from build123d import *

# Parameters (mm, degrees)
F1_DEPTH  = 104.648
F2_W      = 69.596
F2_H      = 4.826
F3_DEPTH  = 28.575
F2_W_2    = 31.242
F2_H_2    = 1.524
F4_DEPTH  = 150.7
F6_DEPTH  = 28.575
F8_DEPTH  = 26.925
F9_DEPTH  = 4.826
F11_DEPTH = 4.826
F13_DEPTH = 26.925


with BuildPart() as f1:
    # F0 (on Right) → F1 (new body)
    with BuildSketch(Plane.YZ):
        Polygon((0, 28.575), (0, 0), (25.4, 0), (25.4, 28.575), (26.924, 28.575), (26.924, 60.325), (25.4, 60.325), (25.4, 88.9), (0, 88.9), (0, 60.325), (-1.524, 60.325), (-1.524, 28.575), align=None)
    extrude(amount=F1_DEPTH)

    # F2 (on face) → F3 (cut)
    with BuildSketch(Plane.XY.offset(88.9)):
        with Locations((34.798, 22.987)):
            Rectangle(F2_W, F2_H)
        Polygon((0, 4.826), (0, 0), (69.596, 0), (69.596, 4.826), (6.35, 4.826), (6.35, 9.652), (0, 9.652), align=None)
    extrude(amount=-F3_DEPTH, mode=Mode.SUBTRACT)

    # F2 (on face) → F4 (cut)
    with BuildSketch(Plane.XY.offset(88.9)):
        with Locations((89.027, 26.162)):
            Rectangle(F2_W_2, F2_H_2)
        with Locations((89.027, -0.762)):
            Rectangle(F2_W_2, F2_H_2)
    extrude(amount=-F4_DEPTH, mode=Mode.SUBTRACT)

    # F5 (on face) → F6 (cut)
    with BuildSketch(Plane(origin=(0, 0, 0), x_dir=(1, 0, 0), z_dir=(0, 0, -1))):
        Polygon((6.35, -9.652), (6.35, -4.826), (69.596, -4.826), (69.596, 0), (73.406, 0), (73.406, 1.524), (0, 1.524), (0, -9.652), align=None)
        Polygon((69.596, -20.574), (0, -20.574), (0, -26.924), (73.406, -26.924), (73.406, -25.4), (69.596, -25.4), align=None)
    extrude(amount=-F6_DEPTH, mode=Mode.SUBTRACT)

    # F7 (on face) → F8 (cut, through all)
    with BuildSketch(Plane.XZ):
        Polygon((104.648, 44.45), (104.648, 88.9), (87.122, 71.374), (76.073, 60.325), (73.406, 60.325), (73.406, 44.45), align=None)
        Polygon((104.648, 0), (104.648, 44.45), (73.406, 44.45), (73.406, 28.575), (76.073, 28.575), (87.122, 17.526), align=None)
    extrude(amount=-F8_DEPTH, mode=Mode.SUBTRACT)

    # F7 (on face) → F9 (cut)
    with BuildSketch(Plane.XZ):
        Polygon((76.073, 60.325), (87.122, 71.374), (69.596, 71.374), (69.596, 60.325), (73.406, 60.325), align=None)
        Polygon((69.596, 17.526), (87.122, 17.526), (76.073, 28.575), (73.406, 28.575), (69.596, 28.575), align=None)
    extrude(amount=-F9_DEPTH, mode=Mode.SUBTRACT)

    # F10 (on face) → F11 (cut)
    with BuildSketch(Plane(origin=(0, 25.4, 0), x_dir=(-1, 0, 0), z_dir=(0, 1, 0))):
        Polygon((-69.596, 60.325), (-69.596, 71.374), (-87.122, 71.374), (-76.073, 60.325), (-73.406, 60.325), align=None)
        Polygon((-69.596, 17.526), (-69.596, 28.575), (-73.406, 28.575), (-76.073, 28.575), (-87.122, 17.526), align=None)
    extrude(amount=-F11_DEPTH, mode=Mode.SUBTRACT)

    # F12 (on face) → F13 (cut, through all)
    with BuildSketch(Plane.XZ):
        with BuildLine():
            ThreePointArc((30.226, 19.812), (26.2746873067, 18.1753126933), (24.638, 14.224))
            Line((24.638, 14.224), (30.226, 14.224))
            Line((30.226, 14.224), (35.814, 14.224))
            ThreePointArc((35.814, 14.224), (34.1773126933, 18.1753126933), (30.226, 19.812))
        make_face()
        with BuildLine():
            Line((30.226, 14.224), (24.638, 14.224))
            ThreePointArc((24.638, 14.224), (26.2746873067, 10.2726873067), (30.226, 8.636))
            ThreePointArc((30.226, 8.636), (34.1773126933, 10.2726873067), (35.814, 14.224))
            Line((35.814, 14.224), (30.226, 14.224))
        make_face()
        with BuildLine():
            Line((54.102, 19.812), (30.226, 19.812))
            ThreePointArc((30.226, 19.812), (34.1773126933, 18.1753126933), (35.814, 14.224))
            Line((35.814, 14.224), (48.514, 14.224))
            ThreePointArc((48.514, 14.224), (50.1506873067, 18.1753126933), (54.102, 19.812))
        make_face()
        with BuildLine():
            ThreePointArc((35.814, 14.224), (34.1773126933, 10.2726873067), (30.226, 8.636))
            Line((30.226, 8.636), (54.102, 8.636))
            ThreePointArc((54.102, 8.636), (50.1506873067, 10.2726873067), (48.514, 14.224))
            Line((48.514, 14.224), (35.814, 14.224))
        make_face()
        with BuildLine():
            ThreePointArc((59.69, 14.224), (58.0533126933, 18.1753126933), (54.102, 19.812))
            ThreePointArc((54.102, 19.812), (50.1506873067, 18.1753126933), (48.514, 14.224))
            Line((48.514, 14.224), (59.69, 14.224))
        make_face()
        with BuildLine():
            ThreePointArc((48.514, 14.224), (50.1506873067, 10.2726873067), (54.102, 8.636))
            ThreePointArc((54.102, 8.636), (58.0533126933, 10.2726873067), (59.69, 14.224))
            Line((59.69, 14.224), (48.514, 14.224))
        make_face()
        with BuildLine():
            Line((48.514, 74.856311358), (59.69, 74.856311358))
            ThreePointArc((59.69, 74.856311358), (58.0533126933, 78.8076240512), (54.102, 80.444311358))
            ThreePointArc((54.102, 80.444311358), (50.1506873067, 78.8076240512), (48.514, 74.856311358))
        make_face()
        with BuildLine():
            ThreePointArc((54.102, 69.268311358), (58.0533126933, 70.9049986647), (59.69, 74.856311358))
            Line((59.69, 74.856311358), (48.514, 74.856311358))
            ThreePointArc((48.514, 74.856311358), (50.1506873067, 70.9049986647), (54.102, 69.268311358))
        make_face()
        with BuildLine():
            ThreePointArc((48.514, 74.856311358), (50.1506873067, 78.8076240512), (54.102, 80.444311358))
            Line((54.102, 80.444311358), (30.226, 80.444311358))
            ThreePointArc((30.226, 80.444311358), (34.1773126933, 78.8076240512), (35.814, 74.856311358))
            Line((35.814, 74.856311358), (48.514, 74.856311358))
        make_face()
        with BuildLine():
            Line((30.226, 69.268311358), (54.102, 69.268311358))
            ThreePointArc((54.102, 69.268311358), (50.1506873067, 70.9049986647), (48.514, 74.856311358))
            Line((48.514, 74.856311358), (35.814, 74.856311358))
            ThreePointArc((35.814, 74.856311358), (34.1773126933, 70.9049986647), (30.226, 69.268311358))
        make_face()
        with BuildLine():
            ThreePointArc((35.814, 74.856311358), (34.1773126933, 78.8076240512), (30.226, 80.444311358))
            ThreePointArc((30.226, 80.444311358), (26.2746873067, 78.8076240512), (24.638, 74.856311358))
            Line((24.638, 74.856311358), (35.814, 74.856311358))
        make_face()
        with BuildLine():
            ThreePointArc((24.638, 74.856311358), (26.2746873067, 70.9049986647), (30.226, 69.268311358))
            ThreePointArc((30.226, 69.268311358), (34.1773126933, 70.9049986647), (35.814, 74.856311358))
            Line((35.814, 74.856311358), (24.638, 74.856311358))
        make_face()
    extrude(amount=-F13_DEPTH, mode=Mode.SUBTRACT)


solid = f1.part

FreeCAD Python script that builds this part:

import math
import FreeCAD as App
import Part
import Sketcher

V = App.Vector
Q = App.Units.Quantity


def add_polygon(sketch, points):
    """Adds a closed chain of lines whose ends are joined by coincident constraints."""
    first, n = sketch.GeometryCount, len(points)
    for a, b in zip(points, points[1:] + points[:1]):
        sketch.addGeometry(Part.LineSegment(App.Vector(*a, 0), App.Vector(*b, 0)), False)
    for i in range(n):
        sketch.addConstraint(Sketcher.Constraint("Coincident", first + i, 2, first + (i + 1) % n, 1))

doc = App.newDocument("Part")
body = doc.addObject("PartDesign::Body", "Body")

# Sketch on YZ plane
sketch1 = body.newObject("Sketcher::SketchObject", "Sketch")
sketch1.AttachmentSupport = (doc.getObject("YZ_Plane"), [""])
sketch1.MapMode = "FlatFace"
add_polygon(sketch1, [(0, 28.575), (0, 0), (25.4, 0), (25.4, 28.575), (26.924, 28.575), (26.924, 60.325), (25.4, 60.325), (25.4, 88.9), (0, 88.9), (0, 60.325), (-1.524, 60.325), (-1.524, 28.575)])  # lines 0-11
sketch1.addConstraint(Sketcher.Constraint("Vertical", 0))
sketch1.addConstraint(Sketcher.Constraint("Horizontal", 1))
sketch1.addConstraint(Sketcher.Constraint("Vertical", 2))
sketch1.addConstraint(Sketcher.Constraint("Horizontal", 3))
sketch1.addConstraint(Sketcher.Constraint("Vertical", 4))
sketch1.addConstraint(Sketcher.Constraint("Horizontal", 5))
sketch1.addConstraint(Sketcher.Constraint("Vertical", 6))
sketch1.addConstraint(Sketcher.Constraint("Horizontal", 7))
sketch1.addConstraint(Sketcher.Constraint("Vertical", 8))
sketch1.addConstraint(Sketcher.Constraint("Horizontal", 9))
sketch1.addConstraint(Sketcher.Constraint("Vertical", 10))
sketch1.addConstraint(Sketcher.Constraint("Horizontal", 11))
sketch1.addConstraint(Sketcher.Constraint("Coincident", 0, 2, -1, 1))
sketch1.addConstraint(Sketcher.Constraint("PointOnObject", 7, 2, -2))
sketch1.addConstraint(Sketcher.Constraint("Horizontal", 5, 2, 8, 2))
sketch1.addConstraint(Sketcher.Constraint("Horizontal", 3, 2, 10, 2))
sketch1.addConstraint(Sketcher.Constraint("Vertical", 2, 2, 5, 2))
sketch1.addConstraint(Sketcher.Constraint("Equal", 5, 9))
sketch1.addConstraint(Sketcher.Constraint("Equal", 2, 6))
sketch1.addConstraint(Sketcher.Constraint("DistanceX", 1, 1, 1, 2, Q("1 in")))
sketch1.addConstraint(Sketcher.Constraint("DistanceX", 3, 1, 3, 2, Q("0.06 in")))
sketch1.addConstraint(Sketcher.Constraint("DistanceY", 4, 1, 4, 2, Q("1.25 in")))
sketch1.addConstraint(Sketcher.Constraint("DistanceY", -1, 1, 6, 2, Q("3.5 in")))
pad1 = body.newObject("PartDesign::Pad", "Pad")
pad1.Profile = sketch1
pad1.Length = Q("4.12 in")

# Sketch on XY plane
sketch2 = body.newObject("Sketcher::SketchObject", "Sketch001")
sketch2.AttachmentSupport = (doc.getObject("XY_Plane"), [""])
sketch2.MapMode = "FlatFace"
sketch2.AttachmentOffset = App.Placement(V(0, 0, 3.5 * 25.4), App.Rotation())
add_polygon(sketch2, [(0, 25.4), (0, 20.574), (69.596, 20.574), (69.596, 25.4)])  # lines 0-3
add_polygon(sketch2, [(0, 0), (69.596, 0), (69.596, 4.826), (6.35, 4.826), (6.35, 9.652), (0, 9.652)])  # lines 4-9
sketch2.addConstraint(Sketcher.Constraint("Vertical", 0))
sketch2.addConstraint(Sketcher.Constraint("Horizontal", 1))
sketch2.addConstraint(Sketcher.Constraint("Vertical", 2))
sketch2.addConstraint(Sketcher.Constraint("Horizontal", 3))
sketch2.addConstraint(Sketcher.Constraint("Horizontal", 4))
sketch2.addConstraint(Sketcher.Constraint("Vertical", 5))
sketch2.addConstraint(Sketcher.Constraint("Horizontal", 6))
sketch2.addConstraint(Sketcher.Constraint("Vertical", 7))
sketch2.addConstraint(Sketcher.Constraint("Horizontal", 8))
sketch2.addConstraint(Sketcher.Constraint("Vertical", 9))
sketch2.addConstraint(Sketcher.Constraint("Coincident", 9, 2, -1, 1))
sketch2.addConstraint(Sketcher.Constraint("PointOnObject", 0, 2, -2))
sketch2.addConstraint(Sketcher.Constraint("Vertical", 2, 2, 4, 2))
sketch2.addConstraint(Sketcher.Constraint("Equal", 2, 5))
sketch2.addConstraint(Sketcher.Constraint("Equal", 5, 7))
sketch2.addConstraint(Sketcher.Constraint("DistanceY", -1, 1, 2, 2, Q("1 in")))
sketch2.addConstraint(Sketcher.Constraint("DistanceX", 1, 1, 1, 2, Q("2.74 in")))
sketch2.addConstraint(Sketcher.Constraint("DistanceX", 6, 2, 6, 1, Q("2.49 in")))
sketch2.addConstraint(Sketcher.Constraint("DistanceY", 0, 2, 0, 1, Q("0.19 in")))
pocket1 = body.newObject("PartDesign::Pocket", "Pocket")
pocket1.Profile = sketch2
pocket1.Length = Q("1.125 in")

# Sketch on XY plane
sketch3 = body.newObject("Sketcher::SketchObject", "Sketch002")
sketch3.AttachmentSupport = (doc.getObject("XY_Plane"), [""])
sketch3.MapMode = "FlatFace"
sketch3.AttachmentOffset = App.Placement(V(0, 0, 3.5 * 25.4), App.Rotation())
add_polygon(sketch3, [(73.406, 26.924), (73.406, 25.4), (104.648, 25.4), (104.648, 26.924)])  # lines 0-3
add_polygon(sketch3, [(73.406, 0), (73.406, -1.524), (104.648, -1.524), (104.648, 0)])  # lines 4-7
sketch3.addConstraint(Sketcher.Constraint("Vertical", 0))
sketch3.addConstraint(Sketcher.Constraint("Horizontal", 1))
sketch3.addConstraint(Sketcher.Constraint("Vertical", 2))
sketch3.addConstraint(Sketcher.Constraint("Horizontal", 3))
sketch3.addConstraint(Sketcher.Constraint("Vertical", 4))
sketch3.addConstraint(Sketcher.Constraint("Horizontal", 5))
sketch3.addConstraint(Sketcher.Constraint("Vertical", 6))
sketch3.addConstraint(Sketcher.Constraint("Horizontal", 7))
sketch3.addConstraint(Sketcher.Constraint("PointOnObject", 6, 2, -1))
sketch3.addConstraint(Sketcher.Constraint("Vertical", 3, 2, 4, 2))
sketch3.addConstraint(Sketcher.Constraint("Vertical", 2, 2, 5, 2))
sketch3.addConstraint(Sketcher.Constraint("Equal", 2, 4))
sketch3.addConstraint(Sketcher.Constraint("DistanceY", -1, 1, 0, 2, Q("1 in")))
sketch3.addConstraint(Sketcher.Constraint("DistanceX", 1, 1, 1, 2, Q("1.23 in")))
sketch3.addConstraint(Sketcher.Constraint("DistanceY", 0, 2, 0, 1, Q("0.06 in")))
sketch3.addConstraint(Sketcher.Constraint("DistanceX", -1, 1, 0, 2, Q("2.89 in")))
pocket2 = body.newObject("PartDesign::Pocket", "Pocket001")
pocket2.Profile = sketch3
pocket2.Length = 150.7

# Sketch on XY plane
sketch4 = body.newObject("Sketcher::SketchObject", "Sketch003")
sketch4.AttachmentSupport = (doc.getObject("XY_Plane"), [""])
sketch4.MapMode = "FlatFace"
add_polygon(sketch4, [(6.35, 9.652), (6.35, 4.826), (69.596, 4.826), (69.596, 0), (73.406, 0), (73.406, -1.524), (0, -1.524), (0, 9.652)])  # lines 0-7
add_polygon(sketch4, [(69.596, 20.574), (0, 20.574), (0, 26.924), (73.406, 26.924), (73.406, 25.4), (69.596, 25.4)])  # lines 8-13
sketch4.addConstraint(Sketcher.Constraint("Vertical", 0))
sketch4.addConstraint(Sketcher.Constraint("Horizontal", 1))
sketch4.addConstraint(Sketcher.Constraint("Vertical", 2))
sketch4.addConstraint(Sketcher.Constraint("Horizontal", 3))
sketch4.addConstraint(Sketcher.Constraint("Vertical", 4))
sketch4.addConstraint(Sketcher.Constraint("Horizontal", 5))
sketch4.addConstraint(Sketcher.Constraint("Vertical", 6))
sketch4.addConstraint(Sketcher.Constraint("Horizontal", 7))
sketch4.addConstraint(Sketcher.Constraint("Horizontal", 8))
sketch4.addConstraint(Sketcher.Constraint("Vertical", 9))
sketch4.addConstraint(Sketcher.Constraint("Horizontal", 10))
sketch4.addConstraint(Sketcher.Constraint("Vertical", 11))
sketch4.addConstraint(Sketcher.Constraint("Horizontal", 12))
sketch4.addConstraint(Sketcher.Constraint("Vertical", 13))
sketch4.addConstraint(Sketcher.Constraint("PointOnObject", 2, 2, -1))
sketch4.addConstraint(Sketcher.Constraint("PointOnObject", 5, 2, -2))
sketch4.addConstraint(Sketcher.Constraint("PointOnObject", 8, 2, -2))
sketch4.addConstraint(Sketcher.Constraint("Vertical", 4, 2, 10, 2))
sketch4.addConstraint(Sketcher.Constraint("Vertical", 2, 2, 12, 2))
sketch4.addConstraint(Sketcher.Constraint("Equal", 0, 2))
sketch4.addConstraint(Sketcher.Constraint("Equal", 7, 9))
sketch4.addConstraint(Sketcher.Constraint("Equal", 4, 11))
sketch4.addConstraint(Sketcher.Constraint("Equal", 2, 13))
sketch4.addConstraint(Sketcher.Constraint("DistanceY", -1, 1, 11, 2, Q("1 in")))
sketch4.addConstraint(Sketcher.Constraint("DistanceX", 1, 1, 1, 2, Q("2.49 in")))
sketch4.addConstraint(Sketcher.Constraint("DistanceX", 3, 1, 3, 2, Q("0.15 in")))
sketch4.addConstraint(Sketcher.Constraint("DistanceX", 5, 2, 5, 1, Q("2.89 in")))
sketch4.addConstraint(Sketcher.Constraint("DistanceY", 0, 2, 0, 1, Q("0.19 in")))
pocket3 = body.newObject("PartDesign::Pocket", "Pocket002")
pocket3.Profile = sketch4
pocket3.Length = Q("1.125 in")
pocket3.Reversed = True

# Sketch on XZ plane
sketch5 = body.newObject("Sketcher::SketchObject", "Sketch004")
sketch5.AttachmentSupport = (doc.getObject("XZ_Plane"), [""])
sketch5.MapMode = "FlatFace"
add_polygon(sketch5, [(104.648, 88.9), (76.073, 60.325), (73.406, 60.325), (73.406, 28.575), (76.073, 28.575), (104.648, 0)])  # lines 0-5
sketch5.addConstraint(Sketcher.Constraint("Horizontal", 1))
sketch5.addConstraint(Sketcher.Constraint("Vertical", 2))
sketch5.addConstraint(Sketcher.Constraint("Horizontal", 3))
sketch5.addConstraint(Sketcher.Constraint("Vertical", 5))
sketch5.addConstraint(Sketcher.Constraint("PointOnObject", 4, 2, -1))
sketch5.addConstraint(Sketcher.Constraint("Perpendicular", 0, 4))
sketch5.addConstraint(Sketcher.Constraint("Vertical", 0, 2, 3, 2))
sketch5.addConstraint(Sketcher.Constraint("Equal", 0, 4))
sketch5.addConstraint(Sketcher.Constraint("DistanceY", 5, 1, 5, 2, Q("3.5 in")))
sketch5.addConstraint(Sketcher.Constraint("DistanceY", 2, 2, 2, 1, Q("1.25 in")))
sketch5.addConstraint(Sketcher.Constraint("DistanceX", 1, 2, 1, 1, Q("0.105 in")))
sketch5.addConstraint(Sketcher.Constraint("DistanceX", -1, 1, 1, 2, Q("2.89 in")))
pocket4 = body.newObject("PartDesign::Pocket", "Pocket003")
pocket4.Profile = sketch5
pocket4.Type = "ThroughAll"

# Sketch on XZ plane
sketch6 = body.newObject("Sketcher::SketchObject", "Sketch005")
sketch6.AttachmentSupport = (doc.getObject("XZ_Plane"), [""])
sketch6.MapMode = "FlatFace"
add_polygon(sketch6, [(76.073, 60.325), (87.122, 71.374), (69.596, 71.374), (69.596, 60.325)])  # lines 0-3
add_polygon(sketch6, [(69.596, 17.526), (87.122, 17.526), (76.073, 28.575), (69.596, 28.575)])  # lines 4-7
sketch6.addConstraint(Sketcher.Constraint("Horizontal", 1))
sketch6.addConstraint(Sketcher.Constraint("Vertical", 2))
sketch6.addConstraint(Sketcher.Constraint("Horizontal", 3))
sketch6.addConstraint(Sketcher.Constraint("Horizontal", 4))
sketch6.addConstraint(Sketcher.Constraint("Horizontal", 6))
sketch6.addConstraint(Sketcher.Constraint("Vertical", 7))
sketch6.addConstraint(Sketcher.Constraint("Perpendicular", 0, 5))
sketch6.addConstraint(Sketcher.Constraint("Vertical", 0, 2, 4, 2))
sketch6.addConstraint(Sketcher.Constraint("Vertical", 3, 2, 5, 2))
sketch6.addConstraint(Sketcher.Constraint("Vertical", 2, 2, 6, 2))
sketch6.addConstraint(Sketcher.Constraint("Equal", 2, 7))
sketch6.addConstraint(Sketcher.Constraint("DistanceX", 1, 2, 1, 1, Q("0.69 in")))
sketch6.addConstraint(Sketcher.Constraint("DistanceX", 3, 1, 3, 2, Q("0.255 in")))
sketch6.addConstraint(Sketcher.Constraint("DistanceX", -1, 1, 0, 2, Q("3.43 in")))
sketch6.addConstraint(Sketcher.Constraint("DistanceY", -1, 1, 0, 2, Q("2.81 in")))
sketch6.addConstraint(Sketcher.Constraint("DistanceY", -1, 1, 4, 2, Q("0.69 in")))
pocket5 = body.newObject("PartDesign::Pocket", "Pocket004")
pocket5.Profile = sketch6
pocket5.Length = Q("0.19 in")

# Sketch on XZ plane
sketch7 = body.newObject("Sketcher::SketchObject", "Sketch006")
sketch7.AttachmentSupport = (doc.getObject("XZ_Plane"), [""])
sketch7.MapMode = "FlatFace"
sketch7.AttachmentOffset = App.Placement(V(0, 0, -1 * 25.4), App.Rotation())
add_polygon(sketch7, [(69.596, 60.325), (69.596, 71.374), (87.122, 71.374), (76.073, 60.325)])  # lines 0-3
add_polygon(sketch7, [(69.596, 17.526), (69.596, 28.575), (76.073, 28.575), (87.122, 17.526)])  # lines 4-7
sketch7.addConstraint(Sketcher.Constraint("Vertical", 0))
sketch7.addConstraint(Sketcher.Constraint("Horizontal", 1))
sketch7.addConstraint(Sketcher.Constraint("Horizontal", 3))
sketch7.addConstraint(Sketcher.Constraint("Vertical", 4))
sketch7.addConstraint(Sketcher.Constraint("Horizontal", 5))
sketch7.addConstraint(Sketcher.Constraint("Horizontal", 7))
sketch7.addConstraint(Sketcher.Constraint("Perpendicular", 2, 6))
sketch7.addConstraint(Sketcher.Constraint("Vertical", 3, 2, 4, 2))
sketch7.addConstraint(Sketcher.Constraint("Vertical", 2, 2, 5, 2))
sketch7.addConstraint(Sketcher.Constraint("Vertical", 1, 2, 6, 2))
sketch7.addConstraint(Sketcher.Constraint("Equal", 0, 4))
sketch7.addConstraint(Sketcher.Constraint("DistanceX", 1, 1, 1, 2, Q("0.69 in")))
sketch7.addConstraint(Sketcher.Constraint("DistanceX", 3, 2, 3, 1, Q("0.255 in")))
sketch7.addConstraint(Sketcher.Constraint("DistanceX", -1, 1, 0, 2, Q("2.74 in")))
sketch7.addConstraint(Sketcher.Constraint("DistanceY", -1, 1, 0, 2, Q("2.81 in")))
sketch7.addConstraint(Sketcher.Constraint("DistanceY", -1, 1, 6, 2, Q("0.69 in")))
pocket6 = body.newObject("PartDesign::Pocket", "Pocket005")
pocket6.Profile = sketch7
pocket6.Length = Q("0.19 in")
pocket6.Reversed = True

# Sketch on XZ plane
sketch8 = body.newObject("Sketcher::SketchObject", "Sketch007")
sketch8.AttachmentSupport = (doc.getObject("XZ_Plane"), [""])
sketch8.MapMode = "FlatFace"
sketch8.addGeometry(Part.ArcOfCircle(Part.Circle(V(30.226, 14.224, 0), V(0, 0, 1), 5.588), math.radians(90), math.radians(180)), False)
sketch8.addGeometry(Part.ArcOfCircle(Part.Circle(V(30.226, 14.224, 0), V(0, 0, 1), 5.588), math.radians(180), math.radians(270)), False)
sketch8.addGeometry(Part.LineSegment(V(30.226, 8.636, 0), V(54.102, 8.636, 0)), False)
sketch8.addGeometry(Part.ArcOfCircle(Part.Circle(V(54.102, 14.224, 0), V(0, 0, 1), 5.588), math.radians(-90), math.radians(0)), False)
sketch8.addGeometry(Part.ArcOfCircle(Part.Circle(V(54.102, 14.224, 0), V(0, 0, 1), 5.588), math.radians(0), math.radians(90)), False)
sketch8.addGeometry(Part.LineSegment(V(54.102, 19.812, 0), V(30.226, 19.812, 0)), False)
sketch8.addGeometry(Part.ArcOfCircle(Part.Circle(V(54.102, 74.856311, 0), V(0, 0, 1), 5.588), math.radians(0), math.radians(90)), False)
sketch8.addGeometry(Part.LineSegment(V(54.102, 80.444311, 0), V(30.226, 80.444311, 0)), False)
sketch8.addGeometry(Part.ArcOfCircle(Part.Circle(V(30.226, 74.856311, 0), V(0, 0, 1), 5.588), math.radians(90), math.radians(180)), False)
sketch8.addGeometry(Part.ArcOfCircle(Part.Circle(V(30.226, 74.856311, 0), V(0, 0, 1), 5.588), math.radians(180), math.radians(270)), False)
sketch8.addGeometry(Part.LineSegment(V(30.226, 69.268311, 0), V(54.102, 69.268311, 0)), False)
sketch8.addGeometry(Part.ArcOfCircle(Part.Circle(V(54.102, 74.856311, 0), V(0, 0, 1), 5.588), math.radians(-90), math.radians(0)), False)
sketch8.addConstraint(Sketcher.Constraint("Tangent", 0, 2, 1, 1))
sketch8.addConstraint(Sketcher.Constraint("Tangent", 1, 2, 2, 1))
sketch8.addConstraint(Sketcher.Constraint("Tangent", 2, 2, 3, 1))
sketch8.addConstraint(Sketcher.Constraint("Tangent", 3, 2, 4, 1))
sketch8.addConstraint(Sketcher.Constraint("Tangent", 4, 2, 5, 1))
sketch8.addConstraint(Sketcher.Constraint("Tangent", 5, 2, 0, 1))
sketch8.addConstraint(Sketcher.Constraint("Tangent", 6, 2, 7, 1))
sketch8.addConstraint(Sketcher.Constraint("Tangent", 7, 2, 8, 1))
sketch8.addConstraint(Sketcher.Constraint("Tangent", 8, 2, 9, 1))
sketch8.addConstraint(Sketcher.Constraint("Tangent", 9, 2, 10, 1))
sketch8.addConstraint(Sketcher.Constraint("Tangent", 10, 2, 11, 1))
sketch8.addConstraint(Sketcher.Constraint("Tangent", 11, 2, 6, 1))
sketch8.addConstraint(Sketcher.Constraint("Horizontal", 2))
sketch8.addConstraint(Sketcher.Constraint("Horizontal", 5))
sketch8.addConstraint(Sketcher.Constraint("Horizontal", 7))
sketch8.addConstraint(Sketcher.Constraint("Horizontal", 10))
sketch8.addConstraint(Sketcher.Constraint("Equal", 0, 1))
sketch8.addConstraint(Sketcher.Constraint("Equal", 1, 3))
sketch8.addConstraint(Sketcher.Constraint("Equal", 4, 6))
sketch8.addConstraint(Sketcher.Constraint("Equal", 6, 8))
sketch8.addConstraint(Sketcher.Constraint("Equal", 8, 9))
sketch8.addConstraint(Sketcher.Constraint("Horizontal", 4, 3, 0, 2))
sketch8.addConstraint(Sketcher.Constraint("Horizontal", 0, 2, 3, 2))
sketch8.addConstraint(Sketcher.Constraint("Horizontal", 11, 3, 8, 2))
sketch8.addConstraint(Sketcher.Constraint("Horizontal", 8, 2, 11, 2))
sketch8.addConstraint(Sketcher.Constraint("Vertical", 4, 3, 6, 3))
sketch8.addConstraint(Sketcher.Constraint("Vertical", 1, 3, 8, 3))
sketch8.addConstraint(Sketcher.Constraint("Radius", 0, Q("0.22 in")))
sketch8.addConstraint(Sketcher.Constraint("DistanceX", 2, 1, 2, 2, Q("0.94 in")))
sketch8.addConstraint(Sketcher.Constraint("DistanceX", -1, 1, 0, 3, Q("1.19 in")))
sketch8.addConstraint(Sketcher.Constraint("DistanceY", -1, 1, 0, 3, Q("0.56 in")))
sketch8.addConstraint(Sketcher.Constraint("DistanceY", -1, 1, 6, 3, Q("74.856311 mm")))
pocket7 = body.newObject("PartDesign::Pocket", "Pocket006")
pocket7.Profile = sketch8
pocket7.Type = "ThroughAll"

doc.recompute()
